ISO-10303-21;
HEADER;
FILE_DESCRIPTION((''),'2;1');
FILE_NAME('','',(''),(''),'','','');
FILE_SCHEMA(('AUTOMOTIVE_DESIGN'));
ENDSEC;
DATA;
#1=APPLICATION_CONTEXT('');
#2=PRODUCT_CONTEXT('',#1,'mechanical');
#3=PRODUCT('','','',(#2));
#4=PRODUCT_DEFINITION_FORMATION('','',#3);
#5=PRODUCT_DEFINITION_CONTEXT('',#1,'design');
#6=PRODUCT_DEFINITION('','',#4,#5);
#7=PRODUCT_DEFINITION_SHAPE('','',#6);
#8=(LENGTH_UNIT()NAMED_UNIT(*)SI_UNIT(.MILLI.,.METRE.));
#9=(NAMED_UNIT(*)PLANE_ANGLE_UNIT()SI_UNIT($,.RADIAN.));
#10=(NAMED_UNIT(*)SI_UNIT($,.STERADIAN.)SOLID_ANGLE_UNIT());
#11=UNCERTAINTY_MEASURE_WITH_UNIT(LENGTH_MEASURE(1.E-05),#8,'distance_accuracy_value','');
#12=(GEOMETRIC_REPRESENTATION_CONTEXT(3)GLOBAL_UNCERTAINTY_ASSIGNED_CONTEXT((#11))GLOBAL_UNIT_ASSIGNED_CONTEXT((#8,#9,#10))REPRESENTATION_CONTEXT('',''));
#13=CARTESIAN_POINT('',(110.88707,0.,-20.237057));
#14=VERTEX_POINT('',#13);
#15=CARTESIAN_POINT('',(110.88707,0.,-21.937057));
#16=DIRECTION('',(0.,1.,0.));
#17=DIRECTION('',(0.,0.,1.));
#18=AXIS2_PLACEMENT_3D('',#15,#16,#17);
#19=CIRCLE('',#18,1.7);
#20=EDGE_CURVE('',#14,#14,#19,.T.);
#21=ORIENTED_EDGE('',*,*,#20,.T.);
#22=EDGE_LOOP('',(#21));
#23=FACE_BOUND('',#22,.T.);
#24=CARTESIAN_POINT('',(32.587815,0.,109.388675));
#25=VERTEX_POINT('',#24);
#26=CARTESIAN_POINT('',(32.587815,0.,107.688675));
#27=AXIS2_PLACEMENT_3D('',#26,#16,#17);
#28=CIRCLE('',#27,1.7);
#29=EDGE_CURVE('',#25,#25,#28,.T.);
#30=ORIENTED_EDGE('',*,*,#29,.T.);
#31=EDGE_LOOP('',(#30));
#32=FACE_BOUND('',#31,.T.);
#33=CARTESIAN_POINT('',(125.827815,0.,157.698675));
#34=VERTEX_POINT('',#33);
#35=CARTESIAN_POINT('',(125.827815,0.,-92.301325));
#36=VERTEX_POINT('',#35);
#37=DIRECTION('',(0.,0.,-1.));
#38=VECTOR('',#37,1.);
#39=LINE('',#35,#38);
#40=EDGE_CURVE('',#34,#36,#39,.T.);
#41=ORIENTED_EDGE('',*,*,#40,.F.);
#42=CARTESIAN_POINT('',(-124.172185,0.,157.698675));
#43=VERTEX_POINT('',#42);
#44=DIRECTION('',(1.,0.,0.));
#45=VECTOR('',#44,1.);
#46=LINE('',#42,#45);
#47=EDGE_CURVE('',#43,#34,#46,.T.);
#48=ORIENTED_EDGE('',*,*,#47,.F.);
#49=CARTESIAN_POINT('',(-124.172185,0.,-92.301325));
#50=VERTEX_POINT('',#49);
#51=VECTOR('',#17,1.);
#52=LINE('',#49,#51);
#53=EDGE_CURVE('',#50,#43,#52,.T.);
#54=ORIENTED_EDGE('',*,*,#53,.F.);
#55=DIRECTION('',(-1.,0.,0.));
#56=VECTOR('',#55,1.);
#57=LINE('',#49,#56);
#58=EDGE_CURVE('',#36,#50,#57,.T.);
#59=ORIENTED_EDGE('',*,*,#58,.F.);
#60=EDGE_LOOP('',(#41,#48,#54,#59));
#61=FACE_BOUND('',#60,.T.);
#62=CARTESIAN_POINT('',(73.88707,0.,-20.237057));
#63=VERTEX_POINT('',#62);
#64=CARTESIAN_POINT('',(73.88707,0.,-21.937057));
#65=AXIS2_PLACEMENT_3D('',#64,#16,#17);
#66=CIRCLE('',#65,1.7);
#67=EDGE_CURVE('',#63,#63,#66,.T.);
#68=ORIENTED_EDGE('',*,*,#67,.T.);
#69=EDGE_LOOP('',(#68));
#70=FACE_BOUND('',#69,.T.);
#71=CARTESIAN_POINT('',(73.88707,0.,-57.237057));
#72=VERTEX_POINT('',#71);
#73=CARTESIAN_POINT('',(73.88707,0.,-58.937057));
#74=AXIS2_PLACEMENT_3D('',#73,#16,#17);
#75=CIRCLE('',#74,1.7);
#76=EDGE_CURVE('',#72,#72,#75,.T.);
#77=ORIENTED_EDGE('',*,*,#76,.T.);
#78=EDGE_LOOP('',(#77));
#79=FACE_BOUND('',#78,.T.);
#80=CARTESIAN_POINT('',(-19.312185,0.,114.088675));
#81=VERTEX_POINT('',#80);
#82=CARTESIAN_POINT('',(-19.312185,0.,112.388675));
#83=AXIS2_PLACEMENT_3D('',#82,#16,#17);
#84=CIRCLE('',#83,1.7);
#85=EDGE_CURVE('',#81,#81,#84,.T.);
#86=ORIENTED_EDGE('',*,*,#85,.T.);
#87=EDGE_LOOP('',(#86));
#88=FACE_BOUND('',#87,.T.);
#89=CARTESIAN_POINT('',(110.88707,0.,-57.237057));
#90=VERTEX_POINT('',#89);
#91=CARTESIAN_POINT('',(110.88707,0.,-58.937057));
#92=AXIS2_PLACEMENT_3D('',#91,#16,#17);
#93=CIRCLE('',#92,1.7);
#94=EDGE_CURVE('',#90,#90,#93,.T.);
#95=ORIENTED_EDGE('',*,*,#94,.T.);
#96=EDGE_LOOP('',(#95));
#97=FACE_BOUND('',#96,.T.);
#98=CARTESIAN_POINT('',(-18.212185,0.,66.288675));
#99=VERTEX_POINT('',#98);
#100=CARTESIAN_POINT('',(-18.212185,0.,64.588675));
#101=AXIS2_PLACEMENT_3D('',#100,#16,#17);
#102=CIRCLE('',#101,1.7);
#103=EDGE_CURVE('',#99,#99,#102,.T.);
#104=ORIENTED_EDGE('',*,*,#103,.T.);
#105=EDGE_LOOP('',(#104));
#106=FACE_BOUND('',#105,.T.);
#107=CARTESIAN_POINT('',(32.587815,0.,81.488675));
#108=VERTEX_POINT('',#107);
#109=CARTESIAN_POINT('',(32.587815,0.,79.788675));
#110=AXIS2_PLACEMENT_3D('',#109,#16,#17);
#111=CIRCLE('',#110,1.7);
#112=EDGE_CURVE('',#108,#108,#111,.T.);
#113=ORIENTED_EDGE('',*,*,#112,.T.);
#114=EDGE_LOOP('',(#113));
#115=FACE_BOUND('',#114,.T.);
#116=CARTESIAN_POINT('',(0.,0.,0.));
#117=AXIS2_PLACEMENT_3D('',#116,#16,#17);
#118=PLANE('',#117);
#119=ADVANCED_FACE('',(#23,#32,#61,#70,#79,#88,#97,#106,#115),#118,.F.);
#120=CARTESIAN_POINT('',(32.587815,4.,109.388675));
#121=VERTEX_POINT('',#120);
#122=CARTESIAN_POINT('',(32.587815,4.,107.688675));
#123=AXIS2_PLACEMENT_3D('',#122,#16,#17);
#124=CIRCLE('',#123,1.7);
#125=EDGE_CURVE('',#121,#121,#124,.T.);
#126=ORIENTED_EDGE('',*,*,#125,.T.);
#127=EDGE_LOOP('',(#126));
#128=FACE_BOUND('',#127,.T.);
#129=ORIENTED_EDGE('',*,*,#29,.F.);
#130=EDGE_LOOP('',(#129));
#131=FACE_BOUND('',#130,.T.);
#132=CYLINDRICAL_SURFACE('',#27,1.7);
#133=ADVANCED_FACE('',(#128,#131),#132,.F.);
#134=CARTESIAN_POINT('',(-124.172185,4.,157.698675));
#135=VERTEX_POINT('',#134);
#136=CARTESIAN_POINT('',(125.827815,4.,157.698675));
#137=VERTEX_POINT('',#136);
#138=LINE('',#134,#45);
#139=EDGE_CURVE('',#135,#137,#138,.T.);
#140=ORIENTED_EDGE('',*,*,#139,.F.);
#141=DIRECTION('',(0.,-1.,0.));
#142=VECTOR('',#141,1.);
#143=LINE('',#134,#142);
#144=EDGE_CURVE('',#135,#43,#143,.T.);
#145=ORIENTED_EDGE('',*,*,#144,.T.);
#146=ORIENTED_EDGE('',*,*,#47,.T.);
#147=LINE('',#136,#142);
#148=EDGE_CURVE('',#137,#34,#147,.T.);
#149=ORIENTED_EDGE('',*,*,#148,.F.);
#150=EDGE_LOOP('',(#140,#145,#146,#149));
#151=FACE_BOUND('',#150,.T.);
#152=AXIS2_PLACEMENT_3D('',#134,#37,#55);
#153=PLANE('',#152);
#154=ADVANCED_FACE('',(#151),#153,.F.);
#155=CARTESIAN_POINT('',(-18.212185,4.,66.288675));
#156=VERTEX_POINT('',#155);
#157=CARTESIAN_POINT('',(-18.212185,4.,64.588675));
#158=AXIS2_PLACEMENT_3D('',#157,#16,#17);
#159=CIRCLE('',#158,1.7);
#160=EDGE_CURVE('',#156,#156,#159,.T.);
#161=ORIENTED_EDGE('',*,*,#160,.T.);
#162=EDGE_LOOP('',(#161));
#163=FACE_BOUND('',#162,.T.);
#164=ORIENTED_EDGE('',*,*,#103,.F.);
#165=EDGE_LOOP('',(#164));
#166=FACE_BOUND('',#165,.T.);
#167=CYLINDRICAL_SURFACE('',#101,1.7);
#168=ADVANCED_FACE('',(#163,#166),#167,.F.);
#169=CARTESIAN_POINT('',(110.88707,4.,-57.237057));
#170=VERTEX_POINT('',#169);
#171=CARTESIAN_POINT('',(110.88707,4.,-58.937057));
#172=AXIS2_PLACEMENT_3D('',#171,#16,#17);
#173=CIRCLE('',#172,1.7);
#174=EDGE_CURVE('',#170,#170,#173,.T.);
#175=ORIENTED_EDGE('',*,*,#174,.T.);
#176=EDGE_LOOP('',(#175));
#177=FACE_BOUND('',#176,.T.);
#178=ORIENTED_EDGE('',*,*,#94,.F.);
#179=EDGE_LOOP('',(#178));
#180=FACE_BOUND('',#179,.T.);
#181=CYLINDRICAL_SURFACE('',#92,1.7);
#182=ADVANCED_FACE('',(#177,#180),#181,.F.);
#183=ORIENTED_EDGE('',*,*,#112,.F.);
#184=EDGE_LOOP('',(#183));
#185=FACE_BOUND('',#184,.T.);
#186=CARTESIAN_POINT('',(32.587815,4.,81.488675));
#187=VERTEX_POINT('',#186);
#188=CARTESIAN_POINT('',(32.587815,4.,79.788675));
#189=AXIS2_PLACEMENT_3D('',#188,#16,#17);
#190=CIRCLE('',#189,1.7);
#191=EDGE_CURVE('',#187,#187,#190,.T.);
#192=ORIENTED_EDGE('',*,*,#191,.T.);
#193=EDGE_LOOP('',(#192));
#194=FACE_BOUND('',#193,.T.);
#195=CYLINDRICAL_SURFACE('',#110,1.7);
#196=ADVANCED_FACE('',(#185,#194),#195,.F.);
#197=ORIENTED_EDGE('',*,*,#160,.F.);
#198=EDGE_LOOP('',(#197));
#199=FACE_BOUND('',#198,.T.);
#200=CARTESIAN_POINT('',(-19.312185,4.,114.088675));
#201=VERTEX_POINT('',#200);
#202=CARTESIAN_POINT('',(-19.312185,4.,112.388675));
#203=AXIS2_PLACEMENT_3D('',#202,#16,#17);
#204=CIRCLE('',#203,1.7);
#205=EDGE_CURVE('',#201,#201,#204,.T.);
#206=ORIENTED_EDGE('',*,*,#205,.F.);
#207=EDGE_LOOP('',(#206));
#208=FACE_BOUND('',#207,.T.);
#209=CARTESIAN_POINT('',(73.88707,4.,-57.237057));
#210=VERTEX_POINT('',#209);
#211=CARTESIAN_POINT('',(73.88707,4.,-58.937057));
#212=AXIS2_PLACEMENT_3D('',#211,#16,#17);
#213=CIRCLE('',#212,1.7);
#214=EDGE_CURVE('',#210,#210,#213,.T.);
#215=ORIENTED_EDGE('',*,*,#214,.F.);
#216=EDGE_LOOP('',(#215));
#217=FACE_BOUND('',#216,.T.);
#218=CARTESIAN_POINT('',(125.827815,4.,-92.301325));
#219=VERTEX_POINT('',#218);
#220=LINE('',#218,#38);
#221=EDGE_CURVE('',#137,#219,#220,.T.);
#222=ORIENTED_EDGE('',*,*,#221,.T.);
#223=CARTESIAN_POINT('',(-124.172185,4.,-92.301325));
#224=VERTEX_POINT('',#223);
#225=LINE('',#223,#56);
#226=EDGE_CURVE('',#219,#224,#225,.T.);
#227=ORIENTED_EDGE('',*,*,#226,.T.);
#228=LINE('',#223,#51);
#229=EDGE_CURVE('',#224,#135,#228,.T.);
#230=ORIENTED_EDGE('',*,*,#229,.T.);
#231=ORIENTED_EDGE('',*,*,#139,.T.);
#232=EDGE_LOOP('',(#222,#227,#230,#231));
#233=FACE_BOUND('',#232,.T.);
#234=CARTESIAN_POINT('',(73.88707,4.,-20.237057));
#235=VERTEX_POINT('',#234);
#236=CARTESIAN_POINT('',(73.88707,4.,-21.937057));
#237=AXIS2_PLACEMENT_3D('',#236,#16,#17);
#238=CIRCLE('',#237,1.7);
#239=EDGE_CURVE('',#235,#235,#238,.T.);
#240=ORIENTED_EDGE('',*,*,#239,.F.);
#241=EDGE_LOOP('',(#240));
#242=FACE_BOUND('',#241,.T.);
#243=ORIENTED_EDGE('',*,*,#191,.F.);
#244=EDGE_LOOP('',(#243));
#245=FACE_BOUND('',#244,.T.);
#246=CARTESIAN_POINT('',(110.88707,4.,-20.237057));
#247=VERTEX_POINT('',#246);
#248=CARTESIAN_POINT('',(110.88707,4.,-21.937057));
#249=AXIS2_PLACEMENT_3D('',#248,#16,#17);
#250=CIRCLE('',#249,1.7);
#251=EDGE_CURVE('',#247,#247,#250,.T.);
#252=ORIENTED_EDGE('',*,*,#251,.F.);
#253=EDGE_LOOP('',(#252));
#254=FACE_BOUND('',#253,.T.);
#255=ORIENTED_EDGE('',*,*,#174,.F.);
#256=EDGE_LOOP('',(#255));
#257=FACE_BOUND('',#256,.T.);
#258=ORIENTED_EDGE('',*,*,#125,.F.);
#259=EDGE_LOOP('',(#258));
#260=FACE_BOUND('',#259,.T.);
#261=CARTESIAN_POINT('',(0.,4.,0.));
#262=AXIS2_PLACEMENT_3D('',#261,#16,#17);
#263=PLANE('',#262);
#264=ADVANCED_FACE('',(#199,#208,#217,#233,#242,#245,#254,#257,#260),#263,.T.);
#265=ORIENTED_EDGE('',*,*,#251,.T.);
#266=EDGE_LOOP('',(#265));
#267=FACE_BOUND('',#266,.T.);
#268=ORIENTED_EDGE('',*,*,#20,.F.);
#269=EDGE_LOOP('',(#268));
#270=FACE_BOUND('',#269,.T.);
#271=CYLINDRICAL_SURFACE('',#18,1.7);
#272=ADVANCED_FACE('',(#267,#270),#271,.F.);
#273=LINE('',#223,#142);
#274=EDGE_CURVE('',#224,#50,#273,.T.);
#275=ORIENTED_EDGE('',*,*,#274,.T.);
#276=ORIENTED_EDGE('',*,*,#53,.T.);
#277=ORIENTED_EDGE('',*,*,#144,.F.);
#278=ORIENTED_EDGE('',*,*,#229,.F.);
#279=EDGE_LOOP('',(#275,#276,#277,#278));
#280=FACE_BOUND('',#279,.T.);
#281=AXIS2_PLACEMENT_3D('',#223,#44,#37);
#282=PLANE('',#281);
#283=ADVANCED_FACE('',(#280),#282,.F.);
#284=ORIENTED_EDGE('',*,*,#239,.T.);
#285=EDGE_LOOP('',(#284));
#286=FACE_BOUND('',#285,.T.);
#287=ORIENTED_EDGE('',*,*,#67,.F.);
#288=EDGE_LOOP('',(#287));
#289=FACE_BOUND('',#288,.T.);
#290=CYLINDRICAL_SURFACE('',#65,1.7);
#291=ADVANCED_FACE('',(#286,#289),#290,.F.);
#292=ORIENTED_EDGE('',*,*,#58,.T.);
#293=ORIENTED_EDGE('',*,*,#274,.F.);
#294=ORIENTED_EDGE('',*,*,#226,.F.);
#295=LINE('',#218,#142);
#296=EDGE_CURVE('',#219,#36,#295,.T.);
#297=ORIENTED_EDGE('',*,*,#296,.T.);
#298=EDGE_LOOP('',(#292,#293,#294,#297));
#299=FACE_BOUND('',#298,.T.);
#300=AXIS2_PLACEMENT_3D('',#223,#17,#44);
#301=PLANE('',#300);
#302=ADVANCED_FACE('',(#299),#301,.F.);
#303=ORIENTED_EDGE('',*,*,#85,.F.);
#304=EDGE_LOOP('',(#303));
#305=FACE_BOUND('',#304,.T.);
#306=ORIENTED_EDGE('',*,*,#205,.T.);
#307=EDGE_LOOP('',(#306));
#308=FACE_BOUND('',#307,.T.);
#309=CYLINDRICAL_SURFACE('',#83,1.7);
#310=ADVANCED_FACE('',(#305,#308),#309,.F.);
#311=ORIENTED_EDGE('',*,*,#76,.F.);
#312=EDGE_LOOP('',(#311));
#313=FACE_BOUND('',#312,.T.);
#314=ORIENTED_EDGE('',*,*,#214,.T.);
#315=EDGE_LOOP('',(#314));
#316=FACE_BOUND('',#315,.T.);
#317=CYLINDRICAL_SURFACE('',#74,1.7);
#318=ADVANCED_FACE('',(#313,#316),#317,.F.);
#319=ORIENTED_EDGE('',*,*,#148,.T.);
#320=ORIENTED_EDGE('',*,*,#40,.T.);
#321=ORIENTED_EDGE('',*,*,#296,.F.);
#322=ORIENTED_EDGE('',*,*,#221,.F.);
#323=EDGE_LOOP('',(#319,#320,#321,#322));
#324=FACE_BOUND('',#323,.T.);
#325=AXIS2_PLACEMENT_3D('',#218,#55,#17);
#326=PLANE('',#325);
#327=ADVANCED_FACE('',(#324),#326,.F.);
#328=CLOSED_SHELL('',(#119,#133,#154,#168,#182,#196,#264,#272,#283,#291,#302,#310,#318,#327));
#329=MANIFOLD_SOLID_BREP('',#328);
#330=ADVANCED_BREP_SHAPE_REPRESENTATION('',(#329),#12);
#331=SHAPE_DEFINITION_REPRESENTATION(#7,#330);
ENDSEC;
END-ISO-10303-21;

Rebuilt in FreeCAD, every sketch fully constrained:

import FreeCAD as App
import Part
import Sketcher
from FreeCAD import Vector


def add_polygon(sketch, points):
    """Adds a closed chain of lines whose ends are joined by coincident constraints."""
    first, n = sketch.GeometryCount, len(points)
    for a, b in zip(points, points[1:] + points[:1]):
        sketch.addGeometry(Part.LineSegment(App.Vector(*a, 0), App.Vector(*b, 0)), False)
    for i in range(n):
        sketch.addConstraint(Sketcher.Constraint("Coincident", first + i, 2, first + (i + 1) % n, 1))

doc = App.newDocument("Part")
body = doc.addObject("PartDesign::Body", "Body")

# Sketch on XZ plane
sketch1 = body.newObject("Sketcher::SketchObject", "Sketch")
sketch1.AttachmentSupport = (doc.getObject("XZ_Plane"), [""])
sketch1.MapMode = "FlatFace"
add_polygon(sketch1, [(-124, -92), (-124, 158), (126, 158), (126, -92)])  # lines 0-3
sketch1.addConstraint(Sketcher.Constraint("Vertical", 0))
sketch1.addConstraint(Sketcher.Constraint("Horizontal", 1))
sketch1.addConstraint(Sketcher.Constraint("Vertical", 2))
sketch1.addConstraint(Sketcher.Constraint("Horizontal", 3))
sketch1.addConstraint(Sketcher.Constraint("Equal", 3, 0))
sketch1.addConstraint(Sketcher.Constraint("DistanceX", 1, 1, 1, 2, 250.0))
sketch1.addConstraint(Sketcher.Constraint("DistanceX", 0, 2, -1, 1, 124.172185))
sketch1.addConstraint(Sketcher.Constraint("DistanceY", -1, 1, 0, 2, 157.698675))
pad1 = body.newObject("PartDesign::Pad", "Pad")
pad1.Profile = sketch1
pad1.Length = 4
pad1.Reversed = True

# Sketch on XZ plane
sketch2 = body.newObject("Sketcher::SketchObject", "Sketch001")
sketch2.AttachmentSupport = (doc.getObject("XZ_Plane"), [""])
sketch2.MapMode = "FlatFace"
sketch2.AttachmentOffset = App.Placement(Vector(0, 0, -4), App.Rotation())
sketch2.addGeometry(Part.Circle(Vector(-18.2, 64.6, 0), Vector(0, 0, 1), 1.7), False)
sketch2.addGeometry(Part.Circle(Vector(-19.3, 112.4, 0), Vector(0, 0, 1), 1.7), False)
sketch2.addGeometry(Part.Circle(Vector(32.6, 79.8, 0), Vector(0, 0, 1), 1.7), False)
sketch2.addGeometry(Part.Circle(Vector(32.6, 107.7, 0), Vector(0, 0, 1), 1.7), False)
sketch2.addGeometry(Part.Circle(Vector(73.9, -21.9, 0), Vector(0, 0, 1), 1.7), False)
sketch2.addGeometry(Part.Circle(Vector(73.9, -58.9, 0), Vector(0, 0, 1), 1.7), False)
sketch2.addGeometry(Part.Circle(Vector(110.9, -21.9, 0), Vector(0, 0, 1), 1.7), False)
sketch2.addGeometry(Part.Circle(Vector(110.9, -58.9, 0), Vector(0, 0, 1), 1.7), False)
sketch2.addConstraint(Sketcher.Constraint("Equal", 0, 1))
sketch2.addConstraint(Sketcher.Constraint("Equal", 1, 2))
sketch2.addConstraint(Sketcher.Constraint("Equal", 2, 3))
sketch2.addConstraint(Sketcher.Constraint("Equal", 3, 4))
sketch2.addConstraint(Sketcher.Constraint("Equal", 4, 5))
sketch2.addConstraint(Sketcher.Constraint("Equal", 5, 6))
sketch2.addConstraint(Sketcher.Constraint("Equal", 6, 7))
sketch2.addConstraint(Sketcher.Constraint("Horizontal", 4, 3, 6, 3))
sketch2.addConstraint(Sketcher.Constraint("Horizontal", 5, 3, 7, 3))
sketch2.addConstraint(Sketcher.Constraint("Vertical", 2, 3, 3, 3))
sketch2.addConstraint(Sketcher.Constraint("Vertical", 4, 3, 5, 3))
sketch2.addConstraint(Sketcher.Constraint("Vertical", 6, 3, 7, 3))
sketch2.addConstraint(Sketcher.Constraint("Diameter", 0, 3.4))
sketch2.addConstraint(Sketcher.Constraint("DistanceY", 5, 3, 4, 3, 37.0))
sketch2.addConstraint(Sketcher.Constraint("DistanceX", 4, 3, 6, 3, 37.0))
sketch2.addConstraint(Sketcher.Constraint("DistanceX", 1, 3, 0, 3, 1.1))
sketch2.addConstraint(Sketcher.Constraint("DistanceY", 0, 3, 1, 3, 47.8))
sketch2.addConstraint(Sketcher.Constraint("DistanceX", 0, 3, 2, 3, 50.8))
sketch2.addConstraint(Sketcher.Constraint("DistanceY", 0, 3, 2, 3, 15.2))
sketch2.addConstraint(Sketcher.Constraint("DistanceY", 2, 3, 3, 3, 27.9))
sketch2.addConstraint(Sketcher.Constraint("DistanceX", -1, 1, 4, 3, 73.88707))
sketch2.addConstraint(Sketcher.Constraint("DistanceX", 0, 3, -1, 1, 18.212185))
sketch2.addConstraint(Sketcher.Constraint("DistanceY", -1, 1, 0, 3, 64.588675))
sketch2.addConstraint(Sketcher.Constraint("DistanceY", 4, 3, -1, 1, 21.937057))
pocket1 = body.newObject("PartDesign::Pocket", "Pocket")
pocket1.Profile = sketch2
pocket1.Length = 4
pocket1.Reversed = True

doc.recompute()
